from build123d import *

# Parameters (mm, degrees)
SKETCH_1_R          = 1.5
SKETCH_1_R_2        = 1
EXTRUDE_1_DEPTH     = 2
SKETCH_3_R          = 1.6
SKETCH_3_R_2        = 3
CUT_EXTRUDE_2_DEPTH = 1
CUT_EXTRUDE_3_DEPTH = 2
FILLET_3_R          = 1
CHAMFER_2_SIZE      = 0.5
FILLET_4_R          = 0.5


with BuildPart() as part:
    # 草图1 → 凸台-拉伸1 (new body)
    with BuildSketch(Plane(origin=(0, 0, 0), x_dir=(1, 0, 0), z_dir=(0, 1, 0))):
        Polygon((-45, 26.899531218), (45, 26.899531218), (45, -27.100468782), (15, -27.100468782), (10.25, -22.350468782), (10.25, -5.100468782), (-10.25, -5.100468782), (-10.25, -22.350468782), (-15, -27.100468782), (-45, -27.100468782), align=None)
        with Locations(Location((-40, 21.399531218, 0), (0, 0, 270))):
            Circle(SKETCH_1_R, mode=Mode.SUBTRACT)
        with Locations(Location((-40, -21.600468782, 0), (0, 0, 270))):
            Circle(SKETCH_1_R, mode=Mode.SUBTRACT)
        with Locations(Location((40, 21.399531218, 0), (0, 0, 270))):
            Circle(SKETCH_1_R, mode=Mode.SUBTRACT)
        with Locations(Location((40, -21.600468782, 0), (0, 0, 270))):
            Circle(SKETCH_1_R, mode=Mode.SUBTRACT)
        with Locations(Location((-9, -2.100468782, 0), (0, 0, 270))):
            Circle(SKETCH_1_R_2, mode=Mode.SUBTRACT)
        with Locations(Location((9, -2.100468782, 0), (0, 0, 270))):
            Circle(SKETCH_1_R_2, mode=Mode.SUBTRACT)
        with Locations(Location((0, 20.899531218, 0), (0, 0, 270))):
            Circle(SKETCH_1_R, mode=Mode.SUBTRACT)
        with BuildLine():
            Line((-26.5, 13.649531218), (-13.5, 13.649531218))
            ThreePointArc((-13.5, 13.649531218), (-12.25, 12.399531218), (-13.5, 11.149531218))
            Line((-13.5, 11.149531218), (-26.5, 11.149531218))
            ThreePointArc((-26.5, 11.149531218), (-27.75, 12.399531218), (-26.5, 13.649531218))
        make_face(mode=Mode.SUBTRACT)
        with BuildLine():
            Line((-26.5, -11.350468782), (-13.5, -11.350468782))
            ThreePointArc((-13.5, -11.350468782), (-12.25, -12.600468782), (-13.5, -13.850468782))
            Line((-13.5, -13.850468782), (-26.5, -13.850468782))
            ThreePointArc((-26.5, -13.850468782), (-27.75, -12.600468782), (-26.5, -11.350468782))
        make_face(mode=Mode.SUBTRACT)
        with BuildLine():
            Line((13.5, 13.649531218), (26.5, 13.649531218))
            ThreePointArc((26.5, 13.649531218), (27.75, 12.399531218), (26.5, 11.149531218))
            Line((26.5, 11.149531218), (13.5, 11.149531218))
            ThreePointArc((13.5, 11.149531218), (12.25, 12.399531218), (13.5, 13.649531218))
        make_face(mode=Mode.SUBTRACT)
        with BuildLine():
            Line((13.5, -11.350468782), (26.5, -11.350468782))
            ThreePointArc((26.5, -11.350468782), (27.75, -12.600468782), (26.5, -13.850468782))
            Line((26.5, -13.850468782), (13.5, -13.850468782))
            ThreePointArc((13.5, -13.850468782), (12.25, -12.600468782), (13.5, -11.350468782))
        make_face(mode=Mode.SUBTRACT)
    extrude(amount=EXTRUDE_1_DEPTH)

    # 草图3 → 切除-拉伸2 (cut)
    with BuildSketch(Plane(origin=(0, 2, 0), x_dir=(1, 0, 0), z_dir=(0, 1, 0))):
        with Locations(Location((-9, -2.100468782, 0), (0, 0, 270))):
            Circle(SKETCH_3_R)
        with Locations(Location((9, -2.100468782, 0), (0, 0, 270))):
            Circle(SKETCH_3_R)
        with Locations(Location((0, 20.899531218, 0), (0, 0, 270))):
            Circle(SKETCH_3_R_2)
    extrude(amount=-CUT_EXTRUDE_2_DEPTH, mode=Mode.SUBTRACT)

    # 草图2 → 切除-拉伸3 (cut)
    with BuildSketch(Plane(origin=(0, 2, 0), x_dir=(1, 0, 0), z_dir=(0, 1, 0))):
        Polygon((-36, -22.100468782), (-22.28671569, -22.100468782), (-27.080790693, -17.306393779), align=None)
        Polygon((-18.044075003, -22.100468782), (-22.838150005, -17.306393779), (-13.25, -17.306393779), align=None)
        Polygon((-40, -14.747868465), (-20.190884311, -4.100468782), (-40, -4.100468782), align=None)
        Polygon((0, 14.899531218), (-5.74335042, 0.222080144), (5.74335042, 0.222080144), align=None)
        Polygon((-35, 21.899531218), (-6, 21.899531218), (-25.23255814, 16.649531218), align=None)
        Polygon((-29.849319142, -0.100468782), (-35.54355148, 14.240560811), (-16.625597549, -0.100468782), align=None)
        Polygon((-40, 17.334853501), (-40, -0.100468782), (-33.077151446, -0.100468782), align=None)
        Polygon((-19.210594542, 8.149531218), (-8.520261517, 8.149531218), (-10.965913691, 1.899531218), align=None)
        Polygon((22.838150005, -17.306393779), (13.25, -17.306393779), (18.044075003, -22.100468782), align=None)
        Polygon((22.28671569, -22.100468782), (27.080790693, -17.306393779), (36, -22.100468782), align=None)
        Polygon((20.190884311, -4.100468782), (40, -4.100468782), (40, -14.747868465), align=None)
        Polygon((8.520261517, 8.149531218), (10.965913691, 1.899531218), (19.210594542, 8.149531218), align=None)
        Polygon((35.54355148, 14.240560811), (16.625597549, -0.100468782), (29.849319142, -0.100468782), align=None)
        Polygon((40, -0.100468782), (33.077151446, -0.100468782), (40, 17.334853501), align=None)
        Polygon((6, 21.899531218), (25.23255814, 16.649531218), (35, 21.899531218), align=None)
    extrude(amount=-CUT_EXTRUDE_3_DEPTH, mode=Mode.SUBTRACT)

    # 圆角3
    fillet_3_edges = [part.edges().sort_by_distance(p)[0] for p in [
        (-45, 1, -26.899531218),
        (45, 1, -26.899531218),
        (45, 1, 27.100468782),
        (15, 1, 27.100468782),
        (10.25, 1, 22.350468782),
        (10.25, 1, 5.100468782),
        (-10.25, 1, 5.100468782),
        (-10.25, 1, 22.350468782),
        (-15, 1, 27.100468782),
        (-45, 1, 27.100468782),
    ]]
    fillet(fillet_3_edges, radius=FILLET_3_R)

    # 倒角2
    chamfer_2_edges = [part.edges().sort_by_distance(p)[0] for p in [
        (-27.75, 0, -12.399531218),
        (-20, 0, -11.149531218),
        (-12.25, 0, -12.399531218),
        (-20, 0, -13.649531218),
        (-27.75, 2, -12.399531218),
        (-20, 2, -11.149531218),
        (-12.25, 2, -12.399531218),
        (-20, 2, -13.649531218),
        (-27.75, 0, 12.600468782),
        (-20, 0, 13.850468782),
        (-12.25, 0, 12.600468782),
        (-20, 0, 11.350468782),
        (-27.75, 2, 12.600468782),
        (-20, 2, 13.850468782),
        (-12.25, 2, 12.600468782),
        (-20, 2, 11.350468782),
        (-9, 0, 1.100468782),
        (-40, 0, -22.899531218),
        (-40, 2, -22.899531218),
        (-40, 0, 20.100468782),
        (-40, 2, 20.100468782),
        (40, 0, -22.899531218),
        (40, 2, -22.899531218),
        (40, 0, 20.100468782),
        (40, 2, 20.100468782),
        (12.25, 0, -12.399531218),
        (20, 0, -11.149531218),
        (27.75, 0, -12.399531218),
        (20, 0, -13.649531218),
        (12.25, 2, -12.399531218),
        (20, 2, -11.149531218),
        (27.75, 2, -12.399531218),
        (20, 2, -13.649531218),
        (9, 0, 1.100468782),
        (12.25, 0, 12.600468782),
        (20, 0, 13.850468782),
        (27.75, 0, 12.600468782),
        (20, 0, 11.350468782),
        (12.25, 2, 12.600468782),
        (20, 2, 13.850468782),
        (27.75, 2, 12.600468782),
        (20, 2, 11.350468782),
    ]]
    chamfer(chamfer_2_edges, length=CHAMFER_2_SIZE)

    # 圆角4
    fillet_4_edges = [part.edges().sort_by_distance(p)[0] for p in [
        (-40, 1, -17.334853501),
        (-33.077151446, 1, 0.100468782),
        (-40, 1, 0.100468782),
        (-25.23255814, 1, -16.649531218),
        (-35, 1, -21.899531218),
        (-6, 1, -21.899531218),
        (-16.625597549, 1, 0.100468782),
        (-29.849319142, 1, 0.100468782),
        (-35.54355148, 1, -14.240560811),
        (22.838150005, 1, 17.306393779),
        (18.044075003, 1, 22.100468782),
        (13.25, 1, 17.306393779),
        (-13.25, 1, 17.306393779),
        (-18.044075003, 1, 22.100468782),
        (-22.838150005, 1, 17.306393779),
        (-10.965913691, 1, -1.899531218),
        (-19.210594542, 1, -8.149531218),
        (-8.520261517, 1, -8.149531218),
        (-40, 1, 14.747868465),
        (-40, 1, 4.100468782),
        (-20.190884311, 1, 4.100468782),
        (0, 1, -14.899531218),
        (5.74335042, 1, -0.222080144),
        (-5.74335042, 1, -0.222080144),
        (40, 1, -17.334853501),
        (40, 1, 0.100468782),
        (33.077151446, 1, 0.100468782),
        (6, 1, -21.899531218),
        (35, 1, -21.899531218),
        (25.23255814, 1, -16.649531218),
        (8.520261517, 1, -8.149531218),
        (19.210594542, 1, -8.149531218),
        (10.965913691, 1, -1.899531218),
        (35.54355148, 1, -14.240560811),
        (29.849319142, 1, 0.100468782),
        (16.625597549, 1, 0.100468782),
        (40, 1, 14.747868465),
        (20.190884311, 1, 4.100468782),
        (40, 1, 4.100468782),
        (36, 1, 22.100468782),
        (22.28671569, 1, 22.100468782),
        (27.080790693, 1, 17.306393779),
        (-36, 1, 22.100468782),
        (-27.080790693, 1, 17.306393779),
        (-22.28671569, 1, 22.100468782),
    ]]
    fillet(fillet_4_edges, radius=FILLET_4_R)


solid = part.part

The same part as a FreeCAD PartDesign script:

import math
import FreeCAD as App
import Part
import Sketcher
Q = App.Units.Quantity


def edges_at(feature, points):
    """Names of the edges that pass closest to the given points."""
    edges = feature.Shape.Edges
    near = lambda p: min(range(len(edges)), key=lambda i: edges[i].distToShape(Part.Vertex(*p))[0])
    return sorted({f"Edge{near(p) + 1}" for p in points})

doc = App.newDocument("Part")
body = doc.addObject("PartDesign::Body", "Body")

sketch1 = doc.addObject("Sketcher::SketchObject", "Sketch")
body.addObject(sketch1)
sketch1.AttachmentSupport = (doc.XZ_Plane, [""])
sketch1.MapMode = "FlatFace"
sketch1.addGeometry(Part.LineSegment(App.Vector(45, -26.9, 0), App.Vector(-45, -26.9, 0)), False)
sketch1.addGeometry(Part.LineSegment(App.Vector(-45, -26.9, 0), App.Vector(-45, 27.1, 0)), False)
sketch1.addGeometry(Part.LineSegment(App.Vector(-45, 27.1, 0), App.Vector(-15, 27.1, 0)), False)
sketch1.addGeometry(Part.LineSegment(App.Vector(-15, 27.1, 0), App.Vector(-10.2, 22.4, 0)), False)
sketch1.addGeometry(Part.LineSegment(App.Vector(-10.2, 22.4, 0), App.Vector(-10.2, 5.1, 0)), False)
sketch1.addGeometry(Part.LineSegment(App.Vector(-10.2, 5.1, 0), App.Vector(10.2, 5.1, 0)), False)
sketch1.addGeometry(Part.LineSegment(App.Vector(10.2, 5.1, 0), App.Vector(10.2, 22.4, 0)), False)
sketch1.addGeometry(Part.LineSegment(App.Vector(10.2, 22.4, 0), App.Vector(15, 27.1, 0)), False)
sketch1.addGeometry(Part.LineSegment(App.Vector(15, 27.1, 0), App.Vector(45, 27.1, 0)), False)
sketch1.addGeometry(Part.LineSegment(App.Vector(45, 27.1, 0), App.Vector(45, -26.9, 0)), False)
sketch1.addGeometry(Part.Circle(App.Vector(40, 21.6, 0), App.Vector(0, 0, 1), 1.5), False)
sketch1.addGeometry(Part.LineSegment(App.Vector(13.5, 11.4, 0), App.Vector(26.5, 11.4, 0)), False)
sketch1.addGeometry(Part.ArcOfCircle(Part.Circle(App.Vector(26.5, 12.6, 0), App.Vector(0, 0, 1), 1.2), math.radians(-90), math.radians(90)), False)
sketch1.addGeometry(Part.LineSegment(App.Vector(26.5, 13.9, 0), App.Vector(13.5, 13.9, 0)), False)
sketch1.addGeometry(Part.ArcOfCircle(Part.Circle(App.Vector(13.5, 12.6, 0), App.Vector(0, 0, 1), 1.2), math.radians(90), math.radians(270)), False)
sketch1.addGeometry(Part.Circle(App.Vector(9, 2.1, 0), App.Vector(0, 0, 1), 1), False)
sketch1.addGeometry(Part.LineSegment(App.Vector(-26.5, 11.4, 0), App.Vector(-13.5, 11.4, 0)), False)
sketch1.addGeometry(Part.ArcOfCircle(Part.Circle(App.Vector(-13.5, 12.6, 0), App.Vector(0, 0, 1), 1.2), math.radians(-90), math.radians(90)), False)
sketch1.addGeometry(Part.LineSegment(App.Vector(-13.5, 13.9, 0), App.Vector(-26.5, 13.9, 0)), False)
sketch1.addGeometry(Part.ArcOfCircle(Part.Circle(App.Vector(-26.5, 12.6, 0), App.Vector(0, 0, 1), 1.2), math.radians(90), math.radians(270)), False)
sketch1.addGeometry(Part.Circle(App.Vector(-40, 21.6, 0), App.Vector(0, 0, 1), 1.5), False)
sketch1.addGeometry(Part.Circle(App.Vector(-9, 2.1, 0), App.Vector(0, 0, 1), 1), False)
sketch1.addGeometry(Part.Circle(App.Vector(40, -21.4, 0), App.Vector(0, 0, 1), 1.5), False)
sketch1.addGeometry(Part.LineSegment(App.Vector(13.5, -13.6, 0), App.Vector(26.5, -13.6, 0)), False)
sketch1.addGeometry(Part.ArcOfCircle(Part.Circle(App.Vector(26.5, -12.4, 0), App.Vector(0, 0, 1), 1.2), math.radians(-90), math.radians(90)), False)
sketch1.addGeometry(Part.LineSegment(App.Vector(26.5, -11.1, 0), App.Vector(13.5, -11.1, 0)), False)
sketch1.addGeometry(Part.ArcOfCircle(Part.Circle(App.Vector(13.5, -12.4, 0), App.Vector(0, 0, 1), 1.2), math.radians(90), math.radians(270)), False)
sketch1.addGeometry(Part.LineSegment(App.Vector(-26.5, -13.6, 0), App.Vector(-13.5, -13.6, 0)), False)
sketch1.addGeometry(Part.ArcOfCircle(Part.Circle(App.Vector(-13.5, -12.4, 0), App.Vector(0, 0, 1), 1.2), math.radians(-90), math.radians(90)), False)
sketch1.addGeometry(Part.LineSegment(App.Vector(-13.5, -11.1, 0), App.Vector(-26.5, -11.1, 0)), False)
sketch1.addGeometry(Part.ArcOfCircle(Part.Circle(App.Vector(-26.5, -12.4, 0), App.Vector(0, 0, 1), 1.2), math.radians(90), math.radians(270)), False)
sketch1.addGeometry(Part.Circle(App.Vector(0, -20.9, 0), App.Vector(0, 0, 1), 1.5), False)
sketch1.addGeometry(Part.Circle(App.Vector(-40, -21.4, 0), App.Vector(0, 0, 1), 1.5), False)
sketch1.addConstraint(Sketcher.Constraint("Coincident", 0, 2, 1, 1))
sketch1.addConstraint(Sketcher.Constraint("Coincident", 1, 2, 2, 1))
sketch1.addConstraint(Sketcher.Constraint("Coincident", 2, 2, 3, 1))
sketch1.addConstraint(Sketcher.Constraint("Coincident", 3, 2, 4, 1))
sketch1.addConstraint(Sketcher.Constraint("Coincident", 4, 2, 5, 1))
sketch1.addConstraint(Sketcher.Constraint("Coincident", 5, 2, 6, 1))
sketch1.addConstraint(Sketcher.Constraint("Coincident", 6, 2, 7, 1))
sketch1.addConstraint(Sketcher.Constraint("Coincident", 7, 2, 8, 1))
sketch1.addConstraint(Sketcher.Constraint("Coincident", 8, 2, 9, 1))
sketch1.addConstraint(Sketcher.Constraint("Coincident", 9, 2, 0, 1))
sketch1.addConstraint(Sketcher.Constraint("Tangent", 11, 2, 12, 1))
sketch1.addConstraint(Sketcher.Constraint("Tangent", 12, 2, 13, 1))
sketch1.addConstraint(Sketcher.Constraint("Tangent", 13, 2, 14, 1))
sketch1.addConstraint(Sketcher.Constraint("Tangent", 14, 2, 11, 1))
sketch1.addConstraint(Sketcher.Constraint("Tangent", 16, 2, 17, 1))
sketch1.addConstraint(Sketcher.Constraint("Tangent", 17, 2, 18, 1))
sketch1.addConstraint(Sketcher.Constraint("Tangent", 18, 2, 19, 1))
sketch1.addConstraint(Sketcher.Constraint("Tangent", 19, 2, 16, 1))
sketch1.addConstraint(Sketcher.Constraint("Tangent", 23, 2, 24, 1))
sketch1.addConstraint(Sketcher.Constraint("Tangent", 24, 2, 25, 1))
sketch1.addConstraint(Sketcher.Constraint("Tangent", 25, 2, 26, 1))
sketch1.addConstraint(Sketcher.Constraint("Tangent", 26, 2, 23, 1))
sketch1.addConstraint(Sketcher.Constraint("Tangent", 27, 2, 28, 1))
sketch1.addConstraint(Sketcher.Constraint("Tangent", 28, 2, 29, 1))
sketch1.addConstraint(Sketcher.Constraint("Tangent", 29, 2, 30, 1))
sketch1.addConstraint(Sketcher.Constraint("Tangent", 30, 2, 27, 1))
sketch1.addConstraint(Sketcher.Constraint("Horizontal", 0))
sketch1.addConstraint(Sketcher.Constraint("Vertical", 1))
sketch1.addConstraint(Sketcher.Constraint("Horizontal", 2))
sketch1.addConstraint(Sketcher.Constraint("Vertical", 4))
sketch1.addConstraint(Sketcher.Constraint("Horizontal", 5))
sketch1.addConstraint(Sketcher.Constraint("Vertical", 6))
sketch1.addConstraint(Sketcher.Constraint("Horizontal", 8))
sketch1.addConstraint(Sketcher.Constraint("Vertical", 9))
sketch1.addConstraint(Sketcher.Constraint("Horizontal", 11))
sketch1.addConstraint(Sketcher.Constraint("Horizontal", 13))
sketch1.addConstraint(Sketcher.Constraint("Horizontal", 16))
sketch1.addConstraint(Sketcher.Constraint("Horizontal", 18))
sketch1.addConstraint(Sketcher.Constraint("Horizontal", 23))
sketch1.addConstraint(Sketcher.Constraint("Horizontal", 25))
sketch1.addConstraint(Sketcher.Constraint("Horizontal", 27))
sketch1.addConstraint(Sketcher.Constraint("Horizontal", 29))
sketch1.addConstraint(Sketcher.Constraint("Equal", 14, 17))
sketch1.addConstraint(Sketcher.Constraint("Equal", 10, 20))
sketch1.addConstraint(Sketcher.Constraint("Equal", 15, 21))
sketch1.addConstraint(Sketcher.Constraint("Equal", 20, 22))
sketch1.addConstraint(Sketcher.Constraint("Equal", 19, 24))
sketch1.addConstraint(Sketcher.Constraint("Equal", 26, 28))
sketch1.addConstraint(Sketcher.Constraint("Equal", 22, 31))
sketch1.addConstraint(Sketcher.Constraint("Equal", 31, 32))
sketch1.addConstraint(Sketcher.Constraint("Symmetric", 14, 3, 17, 3, -2))
sketch1.addConstraint(Sketcher.Constraint("Symmetric", 10, 3, 20, 3, -2))
sketch1.addConstraint(Sketcher.Constraint("Symmetric", 15, 3, 21, 3, -2))
sketch1.addConstraint(Sketcher.Constraint("Symmetric", 26, 3, 28, 3, -2))
sketch1.addConstraint(Sketcher.Constraint("Symmetric", 22, 3, 32, 3, -2))
sketch1.addConstraint(Sketcher.Constraint("Symmetric", 3, 2, 6, 2, -2))
sketch1.addConstraint(Sketcher.Constraint("Symmetric", 2, 2, 7, 2, -2))
sketch1.addConstraint(Sketcher.Constraint("PointOnObject", 31, 3, -2))
sketch1.addConstraint(Sketcher.Constraint("Perpendicular", 3, 7))
sketch1.addConstraint(Sketcher.Constraint("Vertical", 10, 3, 22, 3))
sketch1.addConstraint(Sketcher.Constraint("Vertical", 12, 3, 24, 3))
sketch1.addConstraint(Sketcher.Constraint("Vertical", 14, 3, 26, 3))
sketch1.addConstraint(Sketcher.Constraint("Vertical", 19, 3, 30, 3))
sketch1.addConstraint(Sketcher.Constraint("Equal", 2, 8))
sketch1.addConstraint(Sketcher.Constraint("Equal", 13, 16))
sketch1.addConstraint(Sketcher.Constraint("Diameter", 10, Q("3 mm")))
sketch1.addConstraint(Sketcher.Constraint("Diameter", 15, Q("2 mm")))
sketch1.addConstraint(Sketcher.Constraint("DistanceX", 0, 2, 0, 1, Q("90 mm")))
sketch1.addConstraint(Sketcher.Constraint("DistanceX", 2, 1, 2, 2, Q("30 mm")))
sketch1.addConstraint(Sketcher.Constraint("DistanceX", 11, 1, 11, 2, Q("13 mm")))
sketch1.addConstraint(Sketcher.Constraint("DistanceY", 1, 1, 1, 2, Q("54 mm")))
sketch1.addConstraint(Sketcher.Constraint("Radius", 12, Q("1.25 mm")))
sketch1.addConstraint(Sketcher.Constraint("DistanceX", 5, 1, 5, 2, Q("20.5 mm")))
sketch1.addConstraint(Sketcher.Constraint("DistanceX", -1, 1, 10, 3, Q("40 mm")))
sketch1.addConstraint(Sketcher.Constraint("DistanceX", -1, 1, 15, 3, Q("9 mm")))
sketch1.addConstraint(Sketcher.Constraint("DistanceY", 12, 3, 10, 3, Q("9 mm")))
sketch1.addConstraint(Sketcher.Constraint("DistanceX", 17, 3, 14, 3, Q("27 mm")))
sketch1.addConstraint(Sketcher.Constraint("DistanceY", 22, 3, 12, 3, Q("34 mm")))
sketch1.addConstraint(Sketcher.Constraint("DistanceY", 22, 3, 24, 3, Q("9 mm")))
sketch1.addConstraint(Sketcher.Constraint("DistanceY", 31, 3, 15, 3, Q("23 mm")))
sketch1.addConstraint(Sketcher.Constraint("DistanceY", 0, 2, 31, 3, Q("6 mm")))
sketch1.addConstraint(Sketcher.Constraint("DistanceY", 21, 3, 4, 2, Q("3 mm")))
sketch1.addConstraint(Sketcher.Constraint("DistanceY", 14, 2, 6, 2, Q("11 mm")))
sketch1.addConstraint(Sketcher.Constraint("DistanceY", -1, 1, 10, 3, Q("21.600469 mm")))
pad1 = doc.addObject("PartDesign::Pad", "Pad")
body.addObject(pad1)
pad1.Profile = sketch1
pad1.Length = 2
pad1.Reversed = True

sketch2 = doc.addObject("Sketcher::SketchObject", "Sketch001")
body.addObject(sketch2)
sketch2.AttachmentSupport = (doc.XZ_Plane, [""])
sketch2.MapMode = "FlatFace"
sketch2.AttachmentOffset = App.Placement(App.Vector(0, 0, -2), App.Rotation())
sketch2.addGeometry(Part.Circle(App.Vector(-9, 2.1, 0), App.Vector(0, 0, 1), 1.6), False)
sketch2.addGeometry(Part.Circle(App.Vector(9, 2.1, 0), App.Vector(0, 0, 1), 1.6), False)
sketch2.addGeometry(Part.Circle(App.Vector(0, -20.9, 0), App.Vector(0, 0, 1), 3), False)
sketch2.addConstraint(Sketcher.Constraint("Equal", 0, 1))
sketch2.addConstraint(Sketcher.Constraint("Symmetric", 0, 3, 1, 3, -2))
sketch2.addConstraint(Sketcher.Constraint("PointOnObject", 2, 3, -2))
sketch2.addConstraint(Sketcher.Constraint("Diameter", 2, Q("6 mm")))
sketch2.addConstraint(Sketcher.Constraint("Diameter", 0, Q("3.2 mm")))
sketch2.addConstraint(Sketcher.Constraint("DistanceX", 0, 3, -1, 1, Q("9 mm")))
sketch2.addConstraint(Sketcher.Constraint("DistanceY", 2, 3, 0, 3, Q("23 mm")))
sketch2.addConstraint(Sketcher.Constraint("DistanceY", -1, 1, 0, 3, Q("2.100469 mm")))
pocket1 = doc.addObject("PartDesign::Pocket", "Pocket")
body.addObject(pocket1)
pocket1.Profile = sketch2
pocket1.Length = 1
pocket1.Reversed = True

sketch3 = doc.addObject("Sketcher::SketchObject", "Sketch002")
body.addObject(sketch3)
sketch3.AttachmentSupport = (doc.XZ_Plane, [""])
sketch3.MapMode = "FlatFace"
sketch3.AttachmentOffset = App.Placement(App.Vector(0, 0, -2), App.Rotation())
sketch3.addGeometry(Part.LineSegment(App.Vector(-36, 22, 0), App.Vector(-22, 22, 0)), False)
sketch3.addGeometry(Part.LineSegment(App.Vector(-22, 22, 0), App.Vector(-27, 17, 0)), False)
sketch3.addGeometry(Part.LineSegment(App.Vector(-27, 17, 0), App.Vector(-36, 22, 0)), False)
sketch3.addGeometry(Part.LineSegment(App.Vector(-23, 17, 0), App.Vector(-18, 22, 0)), False)
sketch3.addGeometry(Part.LineSegment(App.Vector(-18, 22, 0), App.Vector(-13, 17, 0)), False)
sketch3.addGeometry(Part.LineSegment(App.Vector(-13, 17, 0), App.Vector(-23, 17, 0)), False)
sketch3.addGeometry(Part.LineSegment(App.Vector(-40, 15, 0), App.Vector(-20, 4, 0)), False)
sketch3.addGeometry(Part.LineSegment(App.Vector(-20, 4, 0), App.Vector(-40, 4, 0)), False)
sketch3.addGeometry(Part.LineSegment(App.Vector(-40, 4, 0), App.Vector(-40, 15, 0)), False)
sketch3.addGeometry(Part.LineSegment(App.Vector(0, -15, 0), App.Vector(-6, 0, 0)), False)
sketch3.addGeometry(Part.LineSegment(App.Vector(-6, 0, 0), App.Vector(6, 0, 0)), False)
sketch3.addGeometry(Part.LineSegment(App.Vector(6, 0, 0), App.Vector(0, -15, 0)), False)
sketch3.addGeometry(Part.LineSegment(App.Vector(-6, -22, 0), App.Vector(-35, -22, 0)), False)
sketch3.addGeometry(Part.LineSegment(App.Vector(-35, -22, 0), App.Vector(-25, -17, 0)), False)
sketch3.addGeometry(Part.LineSegment(App.Vector(-25, -17, 0), App.Vector(-6, -22, 0)), False)
sketch3.addGeometry(Part.LineSegment(App.Vector(-36, -14, 0), App.Vector(-30, 0, 0)), False)
sketch3.addGeometry(Part.LineSegment(App.Vector(-30, 0, 0), App.Vector(-17, 0, 0)), False)
sketch3.addGeometry(Part.LineSegment(App.Vector(-17, 0, 0), App.Vector(-36, -14, 0)), False)
sketch3.addGeometry(Part.LineSegment(App.Vector(-40, -17, 0), App.Vector(-40, 0, 0)), False)
sketch3.addGeometry(Part.LineSegment(App.Vector(-40, 0, 0), App.Vector(-33, 0, 0)), False)
sketch3.addGeometry(Part.LineSegment(App.Vector(-33, 0, 0), App.Vector(-40, -17, 0)), False)
sketch3.addGeometry(Part.LineSegment(App.Vector(-9, -8, 0), App.Vector(-19, -8, 0)), False)
sketch3.addGeometry(Part.LineSegment(App.Vector(-19, -8, 0), App.Vector(-11, -2, 0)), False)
sketch3.addGeometry(Part.LineSegment(App.Vector(-11, -2, 0), App.Vector(-9, -8, 0)), False)
sketch3.addGeometry(Part.LineSegment(App.Vector(23, 17, 0), App.Vector(13, 17, 0)), False)
sketch3.addGeometry(Part.LineSegment(App.Vector(13, 17, 0), App.Vector(18, 22, 0)), False)
sketch3.addGeometry(Part.LineSegment(App.Vector(18, 22, 0), App.Vector(23, 17, 0)), False)
sketch3.addGeometry(Part.LineSegment(App.Vector(27, 17, 0), App.Vector(22, 22, 0)), False)
sketch3.addGeometry(Part.LineSegment(App.Vector(22, 22, 0), App.Vector(36, 22, 0)), False)
sketch3.addGeometry(Part.LineSegment(App.Vector(36, 22, 0), App.Vector(27, 17, 0)), False)
sketch3.addGeometry(Part.LineSegment(App.Vector(40, 4, 0), App.Vector(20, 4, 0)), False)
sketch3.addGeometry(Part.LineSegment(App.Vector(20, 4, 0), App.Vector(40, 15, 0)), False)
sketch3.addGeometry(Part.LineSegment(App.Vector(40, 15, 0), App.Vector(40, 4, 0)), False)
sketch3.addGeometry(Part.LineSegment(App.Vector(9, -8, 0), App.Vector(11, -2, 0)), False)
sketch3.addGeometry(Part.LineSegment(App.Vector(11, -2, 0), App.Vector(19, -8, 0)), False)
sketch3.addGeometry(Part.LineSegment(App.Vector(19, -8, 0), App.Vector(9, -8, 0)), False)
sketch3.addGeometry(Part.LineSegment(App.Vector(36, -14, 0), App.Vector(17, 0, 0)), False)
sketch3.addGeometry(Part.LineSegment(App.Vector(17, 0, 0), App.Vector(30, 0, 0)), False)
sketch3.addGeometry(Part.LineSegment(App.Vector(30, 0, 0), App.Vector(36, -14, 0)), False)
sketch3.addGeometry(Part.LineSegment(App.Vector(33, 0, 0), App.Vector(40, 0, 0)), False)
sketch3.addGeometry(Part.LineSegment(App.Vector(40, 0, 0), App.Vector(40, -17, 0)), False)
sketch3.addGeometry(Part.LineSegment(App.Vector(40, -17, 0), App.Vector(33, 0, 0)), False)
sketch3.addGeometry(Part.LineSegment(App.Vector(6, -22, 0), App.Vector(25, -17, 0)), False)
sketch3.addGeometry(Part.LineSegment(App.Vector(25, -17, 0), App.Vector(35, -22, 0)), False)
sketch3.addGeometry(Part.LineSegment(App.Vector(35, -22, 0), App.Vector(6, -22, 0)), False)
sketch3.addConstraint(Sketcher.Constraint("Coincident", 0, 2, 1, 1))
sketch3.addConstraint(Sketcher.Constraint("Coincident", 1, 2, 2, 1))
sketch3.addConstraint(Sketcher.Constraint("Coincident", 2, 2, 0, 1))
sketch3.addConstraint(Sketcher.Constraint("Coincident", 3, 2, 4, 1))
sketch3.addConstraint(Sketcher.Constraint("Coincident", 4, 2, 5, 1))
sketch3.addConstraint(Sketcher.Constraint("Coincident", 5, 2, 3, 1))
sketch3.addConstraint(Sketcher.Constraint("Coincident", 6, 2, 7, 1))
sketch3.addConstraint(Sketcher.Constraint("Coincident", 7, 2, 8, 1))
sketch3.addConstraint(Sketcher.Constraint("Coincident", 8, 2, 6, 1))
sketch3.addConstraint(Sketcher.Constraint("Coincident", 9, 2, 10, 1))
sketch3.addConstraint(Sketcher.Constraint("Coincident", 10, 2, 11, 1))
sketch3.addConstraint(Sketcher.Constraint("Coincident", 11, 2, 9, 1))
sketch3.addConstraint(Sketcher.Constraint("Coincident", 12, 2, 13, 1))
sketch3.addConstraint(Sketcher.Constraint("Coincident", 13, 2, 14, 1))
sketch3.addConstraint(Sketcher.Constraint("Coincident", 14, 2, 12, 1))
sketch3.addConstraint(Sketcher.Constraint("Coincident", 15, 2, 16, 1))
sketch3.addConstraint(Sketcher.Constraint("Coincident", 16, 2, 17, 1))
sketch3.addConstraint(Sketcher.Constraint("Coincident", 17, 2, 15, 1))
sketch3.addConstraint(Sketcher.Constraint("Coincident", 18, 2, 19, 1))
sketch3.addConstraint(Sketcher.Constraint("Coincident", 19, 2, 20, 1))
sketch3.addConstraint(Sketcher.Constraint("Coincident", 20, 2, 18, 1))
sketch3.addConstraint(Sketcher.Constraint("Coincident", 21, 2, 22, 1))
sketch3.addConstraint(Sketcher.Constraint("Coincident", 22, 2, 23, 1))
sketch3.addConstraint(Sketcher.Constraint("Coincident", 23, 2, 21, 1))
sketch3.addConstraint(Sketcher.Constraint("Coincident", 24, 2, 25, 1))
sketch3.addConstraint(Sketcher.Constraint("Coincident", 25, 2, 26, 1))
sketch3.addConstraint(Sketcher.Constraint("Coincident", 26, 2, 24, 1))
sketch3.addConstraint(Sketcher.Constraint("Coincident", 27, 2, 28, 1))
sketch3.addConstraint(Sketcher.Constraint("Coincident", 28, 2, 29, 1))
sketch3.addConstraint(Sketcher.Constraint("Coincident", 29, 2, 27, 1))
sketch3.addConstraint(Sketcher.Constraint("Coincident", 30, 2, 31, 1))
sketch3.addConstraint(Sketcher.Constraint("Coincident", 31, 2, 32, 1))
sketch3.addConstraint(Sketcher.Constraint("Coincident", 32, 2, 30, 1))
sketch3.addConstraint(Sketcher.Constraint("Coincident", 33, 2, 34, 1))
sketch3.addConstraint(Sketcher.Constraint("Coincident", 34, 2, 35, 1))
sketch3.addConstraint(Sketcher.Constraint("Coincident", 35, 2, 33, 1))
sketch3.addConstraint(Sketcher.Constraint("Coincident", 36, 2, 37, 1))
sketch3.addConstraint(Sketcher.Constraint("Coincident", 37, 2, 38, 1))
sketch3.addConstraint(Sketcher.Constraint("Coincident", 38, 2, 36, 1))
sketch3.addConstraint(Sketcher.Constraint("Coincident", 39, 2, 40, 1))
sketch3.addConstraint(Sketcher.Constraint("Coincident", 40, 2, 41, 1))
sketch3.addConstraint(Sketcher.Constraint("Coincident", 41, 2, 39, 1))
sketch3.addConstraint(Sketcher.Constraint("Coincident", 42, 2, 43, 1))
sketch3.addConstraint(Sketcher.Constraint("Coincident", 43, 2, 44, 1))
sketch3.addConstraint(Sketcher.Constraint("Coincident", 44, 2, 42, 1))
sketch3.addConstraint(Sketcher.Constraint("Horizontal", 0))
sketch3.addConstraint(Sketcher.Constraint("Horizontal", 5))
sketch3.addConstraint(Sketcher.Constraint("Horizontal", 7))
sketch3.addConstraint(Sketcher.Constraint("Vertical", 8))
sketch3.addConstraint(Sketcher.Constraint("Horizontal", 10))
sketch3.addConstraint(Sketcher.Constraint("Horizontal", 12))
sketch3.addConstraint(Sketcher.Constraint("Horizontal", 16))
sketch3.addConstraint(Sketcher.Constraint("Vertical", 18))
sketch3.addConstraint(Sketcher.Constraint("Horizontal", 19))
sketch3.addConstraint(Sketcher.Constraint("Horizontal", 21))
sketch3.addConstraint(Sketcher.Constraint("Horizontal", 24))
sketch3.addConstraint(Sketcher.Constraint("Horizontal", 28))
sketch3.addConstraint(Sketcher.Constraint("Horizontal", 30))
sketch3.addConstraint(Sketcher.Constraint("Vertical", 32))
sketch3.addConstraint(Sketcher.Constraint("Horizontal", 35))
sketch3.addConstraint(Sketcher.Constraint("Horizontal", 37))
sketch3.addConstraint(Sketcher.Constraint("Horizontal", 39))
sketch3.addConstraint(Sketcher.Constraint("Vertical", 40))
sketch3.addConstraint(Sketcher.Constraint("Horizontal", 44))
sketch3.addConstraint(Sketcher.Constraint("Symmetric", 4, 2, 24, 2, -2))
sketch3.addConstraint(Sketcher.Constraint("Symmetric", 3, 2, 25, 2, -2))
sketch3.addConstraint(Sketcher.Constraint("Symmetric", 0, 2, 27, 2, -2))
sketch3.addConstraint(Sketcher.Constraint("Symmetric", 1, 2, 29, 2, -2))
sketch3.addConstraint(Sketcher.Constraint("Symmetric", 6, 2, 30, 2, -2))
sketch3.addConstraint(Sketcher.Constraint("Symmetric", 8, 2, 31, 2, -2))
sketch3.addConstraint(Sketcher.Constraint("Symmetric", 22, 2, 33, 2, -2))
sketch3.addConstraint(Sketcher.Constraint("Symmetric", 21, 2, 34, 2, -2))
sketch3.addConstraint(Sketcher.Constraint("Symmetric", 16, 2, 36, 2, -2))
sketch3.addConstraint(Sketcher.Constraint("Symmetric", 17, 2, 38, 2, -2))
sketch3.addConstraint(Sketcher.Constraint("Symmetric", 18, 2, 39, 2, -2))
sketch3.addConstraint(Sketcher.Constraint("Symmetric", 13, 2, 42, 2, -2))
sketch3.addConstraint(Sketcher.Constraint("Symmetric", 12, 2, 43, 2, -2))
sketch3.addConstraint(Sketcher.Constraint("PointOnObject", 11, 2, -2))
sketch3.addConstraint(Sketcher.Constraint("Parallel", 1, 3))
sketch3.addConstraint(Sketcher.Constraint("Perpendicular", 3, 4))
sketch3.addConstraint(Sketcher.Constraint("Parallel", 2, 6))
sketch3.addConstraint(Sketcher.Constraint("Parallel", 15, 20))
sketch3.addConstraint(Sketcher.Constraint("Parallel", 17, 22))
sketch3.addConstraint(Sketcher.Constraint("Parallel", 9, 23))
sketch3.addConstraint(Sketcher.Constraint("Perpendicular", 4, 25))
sketch3.addConstraint(Sketcher.Constraint("Perpendicular", 25, 26))
sketch3.addConstraint(Sketcher.Constraint("Parallel", 13, 29))
sketch3.addConstraint(Sketcher.Constraint("Parallel", 29, 31))
sketch3.addConstraint(Sketcher.Constraint("Parallel", 11, 33))
sketch3.addConstraint(Sketcher.Constraint("Parallel", 38, 41))
sketch3.addConstraint(Sketcher.Constraint("Horizontal", 2, 2, 3, 2))
sketch3.addConstraint(Sketcher.Constraint("Horizontal", 1, 2, 4, 2))
sketch3.addConstraint(Sketcher.Constraint("Horizontal", 16, 2, 18, 2))
sketch3.addConstraint(Sketcher.Constraint("Horizontal", 20, 2, 40, 2))
sketch3.addConstraint(Sketcher.Constraint("Vertical", 8, 2, 18, 2))
sketch3.addConstraint(Sketcher.Constraint("Equal", 21, 35))
sketch3.addConstraint(Sketcher.Constraint("Equal", 16, 37))
sketch3.addConstraint(Sketcher.Constraint("Equal", 12, 44))
sketch3.addConstraint(Sketcher.Constraint("DistanceX", 12, 2, 12, 1, Q("29 mm")))
sketch3.addConstraint(Sketcher.Constraint("DistanceX", 2, 2, -1, 1, Q("36 mm")))
sketch3.addConstraint(Sketcher.Constraint("DistanceX", 7, 2, -1, 1, Q("40 mm")))
sketch3.addConstraint(Sketcher.Constraint("DistanceX", 12, 2, -1, 1, Q("35 mm")))
sketch3.addConstraint(Sketcher.Constraint("DistanceY", 6, 2, 0, 2, Q("18 mm")))
sketch3.addConstraint(Sketcher.Constraint("DistanceY", 11, 2, 6, 2, Q("19 mm")))
sketch3.addConstraint(Sketcher.Constraint("DistanceY", 12, 2, 7, 2, Q("26 mm")))
sketch3.addConstraint(Sketcher.Constraint("DistanceY", 15, 2, 6, 2, Q("4 mm")))
sketch3.addConstraint(Sketcher.Constraint("DistanceY", 22, 2, 16, 2, Q("2 mm")))
sketch3.addConstraint(Sketcher.Constraint("DistanceY", 13, 2, 21, 2, Q("8.5 mm")))
sketch3.addConstraint(Sketcher.Constraint("DistanceX", 4, 2, 24, 2, Q("26.5 mm")))
sketch3.addConstraint(Sketcher.Constraint("DistanceY", 12, 2, 13, 2, Q("5.25 mm")))
sketch3.addConstraint(Sketcher.Constraint("DistanceX", 10, 1, 10, 2, Q("11.486701 mm")))
sketch3.addConstraint(Sketcher.Constraint("DistanceY", 8, 1, 8, 2, Q("10.6474 mm")))
sketch3.addConstraint(Sketcher.Constraint("DistanceX", 5, 2, 5, 1, Q("9.58815 mm")))
sketch3.addConstraint(Sketcher.Constraint("DistanceX", 16, 1, 16, 2, Q("13.223722 mm")))
sketch3.addConstraint(Sketcher.Constraint("DistanceX", 19, 1, 19, 2, Q("6.922849 mm")))
sketch3.addConstraint(Sketcher.Constraint("DistanceX", 17, 2, 19, 2, Q("2.4664 mm")))
sketch3.addConstraint(Sketcher.Constraint("Distance", 2, Q("10.125979 mm")))
sketch3.addConstraint(Sketcher.Constraint("Distance", 22, Q("10.345881 mm")))
sketch3.addConstraint(Sketcher.Constraint("Distance", 23, Q("6.711461 mm")))
sketch3.addConstraint(Sketcher.Constraint("DistanceY", 18, 1, 18, 2, Q("17.435322 mm")))
sketch3.addConstraint(Sketcher.Constraint("DistanceY", -1, 1, 0, 2, Q("22.100469 mm")))
sketch3.addConstraint(Sketcher.Constraint("DistanceX", 23, 2, -1, 1, Q("8.520262 mm")))
pocket2 = doc.addObject("PartDesign::Pocket", "Pocket001")
body.addObject(pocket2)
pocket2.Profile = sketch3
pocket2.Length = 2
pocket2.Reversed = True
doc.recompute()

fillet = doc.addObject("PartDesign::Fillet", "Fillet")
body.addObject(fillet)
fillet.Base = (pocket2, edges_at(pocket2, [
    (-45, 1, -26.9),
    (45, 1, -26.9),
    (45, 1, 27.1),
    (15, 1, 27.1),
    (10.25, 1, 22.35),
    (10.25, 1, 5.1),
    (-10.25, 1, 5.1),
    (-10.25, 1, 22.35),
    (-15, 1, 27.1),
    (-45, 1, 27.1),
]))
fillet.Radius = 1
doc.recompute()

chamfer = doc.addObject("PartDesign::Chamfer", "Chamfer")
body.addObject(chamfer)
chamfer.Base = (fillet, edges_at(fillet, [
    (-27.75, 0, -12.4),
    (-20, 0, -11.15),
    (-12.25, 0, -12.4),
    (-20, 0, -13.65),
    (-27.75, 2, -12.4),
    (-20, 2, -11.15),
    (-12.25, 2, -12.4),
    (-20, 2, -13.65),
    (-27.75, 0, 12.6),
    (-20, 0, 13.85),
    (-12.25, 0, 12.6),
    (-20, 0, 11.35),
    (-27.75, 2, 12.6),
    (-20, 2, 13.85),
    (-12.25, 2, 12.6),
    (-20, 2, 11.35),
    (-9, 0, 1.1),
    (-40, 0, -22.9),
    (-40, 2, -22.9),
    (-40, 0, 20.1),
    (-40, 2, 20.1),
    (40, 0, -22.9),
    (40, 2, -22.9),
    (40, 0, 20.1),
    (40, 2, 20.1),
    (12.25, 0, -12.4),
    (20, 0, -11.15),
    (27.75, 0, -12.4),
    (20, 0, -13.65),
    (12.25, 2, -12.4),
    (20, 2, -11.15),
    (27.75, 2, -12.4),
    (20, 2, -13.65),
    (9, 0, 1.1),
    (12.25, 0, 12.6),
    (20, 0, 13.85),
    (27.75, 0, 12.6),
    (20, 0, 11.35),
    (12.25, 2, 12.6),
    (20, 2, 13.85),
    (27.75, 2, 12.6),
    (20, 2, 11.35),
]))
chamfer.Size = 0.5
doc.recompute()

fillet2 = doc.addObject("PartDesign::Fillet", "Fillet001")
body.addObject(fillet2)
fillet2.Base = (chamfer, edges_at(chamfer, [
    (-40, 1, -17.335),
    (-33.077, 1, 0.1),
    (-40, 1, 0.1),
    (-25.233, 1, -16.65),
    (-35, 1, -21.9),
    (-6, 1, -21.9),
    (-16.626, 1, 0.1),
    (-29.849, 1, 0.1),
    (-35.544, 1, -14.241),
    (22.838, 1, 17.306),
    (18.044, 1, 22.1),
    (13.25, 1, 17.306),
    (-13.25, 1, 17.306),
    (-18.044, 1, 22.1),
    (-22.838, 1, 17.306),
    (-10.966, 1, -1.9),
    (-19.211, 1, -8.15),
    (-8.52, 1, -8.15),
    (-40, 1, 14.748),
    (-40, 1, 4.1),
    (-20.191, 1, 4.1),
    (0, 1, -14.9),
    (5.743, 1, -0.222),
    (-5.743, 1, -0.222),
    (40, 1, -17.335),
    (40, 1, 0.1),
    (33.077, 1, 0.1),
    (6, 1, -21.9),
    (35, 1, -21.9),
    (25.233, 1, -16.65),
    (8.52, 1, -8.15),
    (19.211, 1, -8.15),
    (10.966, 1, -1.9),
    (35.544, 1, -14.241),
    (29.849, 1, 0.1),
    (16.626, 1, 0.1),
    (40, 1, 14.748),
    (20.191, 1, 4.1),
    (40, 1, 4.1),
    (36, 1, 22.1),
    (22.287, 1, 22.1),
    (27.081, 1, 17.306),
    (-36, 1, 22.1),
    (-27.081, 1, 17.306),
    (-22.287, 1, 22.1),
]))
fillet2.Radius = 0.5

doc.recompute()
